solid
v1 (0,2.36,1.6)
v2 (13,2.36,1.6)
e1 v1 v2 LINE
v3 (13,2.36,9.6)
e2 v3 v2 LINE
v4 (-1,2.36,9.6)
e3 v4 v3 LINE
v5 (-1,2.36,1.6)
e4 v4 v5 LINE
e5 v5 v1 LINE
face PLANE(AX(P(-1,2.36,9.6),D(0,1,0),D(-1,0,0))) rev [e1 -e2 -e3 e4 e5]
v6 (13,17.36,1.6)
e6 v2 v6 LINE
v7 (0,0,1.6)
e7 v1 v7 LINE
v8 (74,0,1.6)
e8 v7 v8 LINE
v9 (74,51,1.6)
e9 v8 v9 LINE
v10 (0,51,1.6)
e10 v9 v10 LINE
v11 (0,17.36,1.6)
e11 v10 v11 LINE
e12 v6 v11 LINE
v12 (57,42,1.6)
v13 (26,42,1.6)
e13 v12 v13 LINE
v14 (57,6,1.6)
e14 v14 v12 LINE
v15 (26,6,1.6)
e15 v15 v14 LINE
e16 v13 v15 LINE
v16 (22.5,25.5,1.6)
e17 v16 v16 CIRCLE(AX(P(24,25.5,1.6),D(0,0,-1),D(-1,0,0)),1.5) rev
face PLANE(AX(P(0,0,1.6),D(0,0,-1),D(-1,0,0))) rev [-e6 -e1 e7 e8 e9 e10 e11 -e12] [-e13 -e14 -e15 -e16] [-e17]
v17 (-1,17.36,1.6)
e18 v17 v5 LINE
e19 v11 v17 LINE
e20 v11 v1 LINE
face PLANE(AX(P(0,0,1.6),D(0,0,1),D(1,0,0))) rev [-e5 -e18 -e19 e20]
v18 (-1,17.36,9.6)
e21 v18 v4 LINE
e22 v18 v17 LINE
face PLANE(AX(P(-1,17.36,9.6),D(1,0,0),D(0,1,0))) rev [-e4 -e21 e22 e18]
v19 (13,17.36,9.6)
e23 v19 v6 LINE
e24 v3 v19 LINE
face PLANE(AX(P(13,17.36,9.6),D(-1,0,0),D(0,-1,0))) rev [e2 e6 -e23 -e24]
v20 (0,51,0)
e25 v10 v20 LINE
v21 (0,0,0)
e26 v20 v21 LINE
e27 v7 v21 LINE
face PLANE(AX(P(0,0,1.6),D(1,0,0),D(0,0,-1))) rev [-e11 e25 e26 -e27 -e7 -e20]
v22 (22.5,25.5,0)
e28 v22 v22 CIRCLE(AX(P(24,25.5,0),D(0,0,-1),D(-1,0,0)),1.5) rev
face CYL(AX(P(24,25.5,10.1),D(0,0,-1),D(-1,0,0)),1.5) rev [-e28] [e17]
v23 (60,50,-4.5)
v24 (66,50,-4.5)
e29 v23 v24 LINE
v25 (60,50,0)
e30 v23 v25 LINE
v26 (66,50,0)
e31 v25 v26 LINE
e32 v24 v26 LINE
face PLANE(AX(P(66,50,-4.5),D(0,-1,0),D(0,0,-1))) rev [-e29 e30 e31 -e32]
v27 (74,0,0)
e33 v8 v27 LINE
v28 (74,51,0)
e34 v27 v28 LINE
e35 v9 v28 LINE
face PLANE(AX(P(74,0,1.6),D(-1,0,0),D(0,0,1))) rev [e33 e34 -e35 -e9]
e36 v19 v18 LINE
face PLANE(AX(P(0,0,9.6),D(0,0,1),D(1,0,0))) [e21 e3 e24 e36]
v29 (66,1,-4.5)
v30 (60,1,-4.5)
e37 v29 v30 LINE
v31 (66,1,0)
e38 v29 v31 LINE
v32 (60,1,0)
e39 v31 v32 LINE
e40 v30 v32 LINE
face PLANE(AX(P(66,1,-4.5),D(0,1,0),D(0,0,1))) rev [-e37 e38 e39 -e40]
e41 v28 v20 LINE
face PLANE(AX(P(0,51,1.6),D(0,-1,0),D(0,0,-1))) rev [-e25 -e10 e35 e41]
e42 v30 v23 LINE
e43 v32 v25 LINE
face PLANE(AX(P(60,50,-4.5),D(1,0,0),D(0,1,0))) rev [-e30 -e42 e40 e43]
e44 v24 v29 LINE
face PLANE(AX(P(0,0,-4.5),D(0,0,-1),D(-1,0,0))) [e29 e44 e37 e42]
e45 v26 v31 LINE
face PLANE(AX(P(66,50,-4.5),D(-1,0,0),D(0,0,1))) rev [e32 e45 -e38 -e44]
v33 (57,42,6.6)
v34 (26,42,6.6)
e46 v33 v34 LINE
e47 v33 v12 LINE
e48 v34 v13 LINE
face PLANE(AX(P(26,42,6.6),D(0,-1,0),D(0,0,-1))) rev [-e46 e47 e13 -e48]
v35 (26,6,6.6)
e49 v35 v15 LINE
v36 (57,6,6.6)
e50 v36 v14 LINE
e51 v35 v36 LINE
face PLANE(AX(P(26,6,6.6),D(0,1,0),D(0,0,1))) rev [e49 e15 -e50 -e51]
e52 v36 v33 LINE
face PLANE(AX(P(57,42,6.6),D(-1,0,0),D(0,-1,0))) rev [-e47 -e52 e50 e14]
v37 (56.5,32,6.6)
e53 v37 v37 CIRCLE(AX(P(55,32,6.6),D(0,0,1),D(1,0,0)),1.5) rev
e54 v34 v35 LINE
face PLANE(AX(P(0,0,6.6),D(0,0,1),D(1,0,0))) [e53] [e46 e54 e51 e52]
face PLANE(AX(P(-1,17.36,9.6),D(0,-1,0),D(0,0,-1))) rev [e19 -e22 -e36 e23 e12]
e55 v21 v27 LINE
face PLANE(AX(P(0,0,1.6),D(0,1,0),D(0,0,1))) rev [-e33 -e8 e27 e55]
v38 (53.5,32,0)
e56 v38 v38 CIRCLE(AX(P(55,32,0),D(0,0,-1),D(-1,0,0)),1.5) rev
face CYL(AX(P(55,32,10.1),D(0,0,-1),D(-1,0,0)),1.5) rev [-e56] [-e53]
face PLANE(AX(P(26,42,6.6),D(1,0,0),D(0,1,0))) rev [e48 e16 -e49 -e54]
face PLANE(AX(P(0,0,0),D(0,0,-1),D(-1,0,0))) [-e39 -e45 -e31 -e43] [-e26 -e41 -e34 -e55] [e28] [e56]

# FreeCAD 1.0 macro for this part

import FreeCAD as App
import Part
import Sketcher

V = App.Vector

doc = App.newDocument("Part")
params = doc.addObject("Spreadsheet::Sheet", "Params")
for row, (alias, value) in enumerate([
    ("sketch1_width", "74 mm"),
    ("sketch1_height", "51 mm"),
    ("pad1_length", "1.6 mm"),
    ("sketch2_width", "31 mm"),
    ("sketch2_height", "36 mm"),
    ("pad2_length", "5 mm"),
    ("sketch3_width", "14 mm"),
    ("sketch3_height", "15 mm"),
    ("pad3_length", "8 mm"),
    ("sketch4_width", "6 mm"),
    ("sketch4_height", "49 mm"),
    ("pad4_length", "4.5 mm"),
    ("sketch5_diameter", "3 mm"),
], start=1):
    params.set(f"A{row}", alias)
    params.set(f"B{row}", "=" + value)
    params.setAlias(f"B{row}", alias)

body = doc.addObject("PartDesign::Body", "Body")

# Sketch on XY plane
sketch1 = doc.addObject("Sketcher::SketchObject", "Sketch")
body.addObject(sketch1)
sketch1.AttachmentSupport = (doc.XY_Plane, [""])
sketch1.MapMode = "FlatFace"
sketch1.addGeometry([
    Part.LineSegment(V(0, 51, 0), V(0, 0, 0)),
    Part.LineSegment(V(0, 0, 0), V(74, 0, 0)),
    Part.LineSegment(V(74, 0, 0), V(74, 51, 0)),
    Part.LineSegment(V(74, 51, 0), V(0, 51, 0)),
], False)
sketch1.addConstraint([
    Sketcher.Constraint("Coincident", 0, 2, 1, 1),
    Sketcher.Constraint("Coincident", 1, 2, 2, 1),
    Sketcher.Constraint("Coincident", 2, 2, 3, 1),
    Sketcher.Constraint("Coincident", 3, 2, 0, 1),
    Sketcher.Constraint("Vertical", 0),
    Sketcher.Constraint("Horizontal", 1),
    Sketcher.Constraint("Vertical", 2),
    Sketcher.Constraint("Horizontal", 3),
    Sketcher.Constraint("Coincident", 0, 2, -1, 1),
    Sketcher.Constraint("DistanceX", 1, 1, 1, 2, 74.0),
    Sketcher.Constraint("DistanceY", 0, 2, 0, 1, 51.0),
])
sketch1.setExpression("Constraints[9]", "Params.sketch1_width")
sketch1.setExpression("Constraints[10]", "Params.sketch1_height")
pad1 = doc.addObject("PartDesign::Pad", "Pad")
body.addObject(pad1)
pad1.Profile = sketch1
pad1.setExpression("Length", "Params.pad1_length")

# Sketch on XY plane
sketch2 = doc.addObject("Sketcher::SketchObject", "Sketch001")
body.addObject(sketch2)
sketch2.AttachmentSupport = (doc.XY_Plane, [""])
sketch2.MapMode = "FlatFace"
sketch2.AttachmentOffset = App.Placement(V(0, 0, 1.6), App.Rotation())
sketch2.addGeometry([
    Part.LineSegment(V(26, 42, 0), V(26, 6, 0)),
    Part.LineSegment(V(26, 6, 0), V(57, 6, 0)),
    Part.LineSegment(V(57, 6, 0), V(57, 42, 0)),
    Part.LineSegment(V(57, 42, 0), V(26, 42, 0)),
], False)
sketch2.addConstraint([
    Sketcher.Constraint("Coincident", 0, 2, 1, 1),
    Sketcher.Constraint("Coincident", 1, 2, 2, 1),
    Sketcher.Constraint("Coincident", 2, 2, 3, 1),
    Sketcher.Constraint("Coincident", 3, 2, 0, 1),
    Sketcher.Constraint("Vertical", 0),
    Sketcher.Constraint("Horizontal", 1),
    Sketcher.Constraint("Vertical", 2),
    Sketcher.Constraint("Horizontal", 3),
    Sketcher.Constraint("DistanceX", 1, 1, 1, 2, 31.0),
    Sketcher.Constraint("DistanceY", 0, 2, 0, 1, 36.0),
    Sketcher.Constraint("DistanceX", -1, 1, 0, 2, 26.0),
    Sketcher.Constraint("DistanceY", -1, 1, 0, 2, 6.0),
])
sketch2.setExpression("Constraints[8]", "Params.sketch2_width")
sketch2.setExpression("Constraints[9]", "Params.sketch2_height")
pad2 = doc.addObject("PartDesign::Pad", "Pad001")
body.addObject(pad2)
pad2.Profile = sketch2
pad2.setExpression("Length", "Params.pad2_length")

# Sketch on XY plane
sketch3 = doc.addObject("Sketcher::SketchObject", "Sketch002")
body.addObject(sketch3)
sketch3.AttachmentSupport = (doc.XY_Plane, [""])
sketch3.MapMode = "FlatFace"
sketch3.AttachmentOffset = App.Placement(V(0, 0, 1.6), App.Rotation())
sketch3.addGeometry([
    Part.LineSegment(V(-1, 17, 0), V(-1, 2, 0)),
    Part.LineSegment(V(-1, 2, 0), V(13, 2, 0)),
    Part.LineSegment(V(13, 2, 0), V(13, 17, 0)),
    Part.LineSegment(V(13, 17, 0), V(-1, 17, 0)),
], False)
sketch3.addConstraint([
    Sketcher.Constraint("Coincident", 0, 2, 1, 1),
    Sketcher.Constraint("Coincident", 1, 2, 2, 1),
    Sketcher.Constraint("Coincident", 2, 2, 3, 1),
    Sketcher.Constraint("Coincident", 3, 2, 0, 1),
    Sketcher.Constraint("Vertical", 0),
    Sketcher.Constraint("Horizontal", 1),
    Sketcher.Constraint("Vertical", 2),
    Sketcher.Constraint("Horizontal", 3),
    Sketcher.Constraint("DistanceX", 1, 1, 1, 2, 14.0),
    Sketcher.Constraint("DistanceY", 0, 2, 0, 1, 15.0),
    Sketcher.Constraint("DistanceX", 0, 2, -1, 1, 1.0),
    Sketcher.Constraint("DistanceY", -1, 1, 0, 2, 2.36),
])
sketch3.setExpression("Constraints[8]", "Params.sketch3_width")
sketch3.setExpression("Constraints[9]", "Params.sketch3_height")
pad3 = doc.addObject("PartDesign::Pad", "Pad002")
body.addObject(pad3)
pad3.Profile = sketch3
pad3.setExpression("Length", "Params.pad3_length")

# Sketch on XY plane
sketch4 = doc.addObject("Sketcher::SketchObject", "Sketch003")
body.addObject(sketch4)
sketch4.AttachmentSupport = (doc.XY_Plane, [""])
sketch4.MapMode = "FlatFace"
sketch4.addGeometry([
    Part.LineSegment(V(66, 50, 0), V(66, 1, 0)),
    Part.LineSegment(V(66, 1, 0), V(60, 1, 0)),
    Part.LineSegment(V(60, 1, 0), V(60, 50, 0)),
    Part.LineSegment(V(60, 50, 0), V(66, 50, 0)),
], False)
sketch4.addConstraint([
    Sketcher.Constraint("Coincident", 0, 2, 1, 1),
    Sketcher.Constraint("Coincident", 1, 2, 2, 1),
    Sketcher.Constraint("Coincident", 2, 2, 3, 1),
    Sketcher.Constraint("Coincident", 3, 2, 0, 1),
    Sketcher.Constraint("Vertical", 0),
    Sketcher.Constraint("Horizontal", 1),
    Sketcher.Constraint("Vertical", 2),
    Sketcher.Constraint("Horizontal", 3),
    Sketcher.Constraint("DistanceX", 1, 2, 1, 1, 6.0),
    Sketcher.Constraint("DistanceY", 0, 2, 0, 1, 49.0),
    Sketcher.Constraint("DistanceX", -1, 1, 0, 2, 66.0),
    Sketcher.Constraint("DistanceY", -1, 1, 0, 2, 1.0),
])
sketch4.setExpression("Constraints[8]", "Params.sketch4_width")
sketch4.setExpression("Constraints[9]", "Params.sketch4_height")
pad4 = doc.addObject("PartDesign::Pad", "Pad003")
body.addObject(pad4)
pad4.Profile = sketch4
pad4.setExpression("Length", "Params.pad4_length")
pad4.Reversed = True

# Sketch on XY plane
sketch5 = doc.addObject("Sketcher::SketchObject", "Sketch004")
body.addObject(sketch5)
sketch5.AttachmentSupport = (doc.XY_Plane, [""])
sketch5.MapMode = "FlatFace"
sketch5.AttachmentOffset = App.Placement(V(0, 0, 1.6), App.Rotation())
sketch5.addGeometry([
    Part.Circle(V(55, 32, 0), V(0, 0, 1), 1.5),
    Part.Circle(V(24, 25.5, 0), V(0, 0, 1), 1.5),
], False)
sketch5.addConstraint([
    Sketcher.Constraint("Equal", 0, 1),
    Sketcher.Constraint("Diameter", 0, 3.0),
    Sketcher.Constraint("DistanceX", -1, 1, 0, 3, 55.0),
    Sketcher.Constraint("DistanceY", -1, 1, 0, 3, 32.0),
    Sketcher.Constraint("DistanceX", -1, 1, 1, 3, 24.0),
    Sketcher.Constraint("DistanceY", -1, 1, 1, 3, 25.5),
])
sketch5.setExpression("Constraints[1]", "Params.sketch5_diameter")
pocket1 = doc.addObject("PartDesign::Pocket", "Pocket")
body.addObject(pocket1)
pocket1.Profile = sketch5
pocket1.Type = "ThroughAll"
pocket1.Midplane = True

doc.recompute()
